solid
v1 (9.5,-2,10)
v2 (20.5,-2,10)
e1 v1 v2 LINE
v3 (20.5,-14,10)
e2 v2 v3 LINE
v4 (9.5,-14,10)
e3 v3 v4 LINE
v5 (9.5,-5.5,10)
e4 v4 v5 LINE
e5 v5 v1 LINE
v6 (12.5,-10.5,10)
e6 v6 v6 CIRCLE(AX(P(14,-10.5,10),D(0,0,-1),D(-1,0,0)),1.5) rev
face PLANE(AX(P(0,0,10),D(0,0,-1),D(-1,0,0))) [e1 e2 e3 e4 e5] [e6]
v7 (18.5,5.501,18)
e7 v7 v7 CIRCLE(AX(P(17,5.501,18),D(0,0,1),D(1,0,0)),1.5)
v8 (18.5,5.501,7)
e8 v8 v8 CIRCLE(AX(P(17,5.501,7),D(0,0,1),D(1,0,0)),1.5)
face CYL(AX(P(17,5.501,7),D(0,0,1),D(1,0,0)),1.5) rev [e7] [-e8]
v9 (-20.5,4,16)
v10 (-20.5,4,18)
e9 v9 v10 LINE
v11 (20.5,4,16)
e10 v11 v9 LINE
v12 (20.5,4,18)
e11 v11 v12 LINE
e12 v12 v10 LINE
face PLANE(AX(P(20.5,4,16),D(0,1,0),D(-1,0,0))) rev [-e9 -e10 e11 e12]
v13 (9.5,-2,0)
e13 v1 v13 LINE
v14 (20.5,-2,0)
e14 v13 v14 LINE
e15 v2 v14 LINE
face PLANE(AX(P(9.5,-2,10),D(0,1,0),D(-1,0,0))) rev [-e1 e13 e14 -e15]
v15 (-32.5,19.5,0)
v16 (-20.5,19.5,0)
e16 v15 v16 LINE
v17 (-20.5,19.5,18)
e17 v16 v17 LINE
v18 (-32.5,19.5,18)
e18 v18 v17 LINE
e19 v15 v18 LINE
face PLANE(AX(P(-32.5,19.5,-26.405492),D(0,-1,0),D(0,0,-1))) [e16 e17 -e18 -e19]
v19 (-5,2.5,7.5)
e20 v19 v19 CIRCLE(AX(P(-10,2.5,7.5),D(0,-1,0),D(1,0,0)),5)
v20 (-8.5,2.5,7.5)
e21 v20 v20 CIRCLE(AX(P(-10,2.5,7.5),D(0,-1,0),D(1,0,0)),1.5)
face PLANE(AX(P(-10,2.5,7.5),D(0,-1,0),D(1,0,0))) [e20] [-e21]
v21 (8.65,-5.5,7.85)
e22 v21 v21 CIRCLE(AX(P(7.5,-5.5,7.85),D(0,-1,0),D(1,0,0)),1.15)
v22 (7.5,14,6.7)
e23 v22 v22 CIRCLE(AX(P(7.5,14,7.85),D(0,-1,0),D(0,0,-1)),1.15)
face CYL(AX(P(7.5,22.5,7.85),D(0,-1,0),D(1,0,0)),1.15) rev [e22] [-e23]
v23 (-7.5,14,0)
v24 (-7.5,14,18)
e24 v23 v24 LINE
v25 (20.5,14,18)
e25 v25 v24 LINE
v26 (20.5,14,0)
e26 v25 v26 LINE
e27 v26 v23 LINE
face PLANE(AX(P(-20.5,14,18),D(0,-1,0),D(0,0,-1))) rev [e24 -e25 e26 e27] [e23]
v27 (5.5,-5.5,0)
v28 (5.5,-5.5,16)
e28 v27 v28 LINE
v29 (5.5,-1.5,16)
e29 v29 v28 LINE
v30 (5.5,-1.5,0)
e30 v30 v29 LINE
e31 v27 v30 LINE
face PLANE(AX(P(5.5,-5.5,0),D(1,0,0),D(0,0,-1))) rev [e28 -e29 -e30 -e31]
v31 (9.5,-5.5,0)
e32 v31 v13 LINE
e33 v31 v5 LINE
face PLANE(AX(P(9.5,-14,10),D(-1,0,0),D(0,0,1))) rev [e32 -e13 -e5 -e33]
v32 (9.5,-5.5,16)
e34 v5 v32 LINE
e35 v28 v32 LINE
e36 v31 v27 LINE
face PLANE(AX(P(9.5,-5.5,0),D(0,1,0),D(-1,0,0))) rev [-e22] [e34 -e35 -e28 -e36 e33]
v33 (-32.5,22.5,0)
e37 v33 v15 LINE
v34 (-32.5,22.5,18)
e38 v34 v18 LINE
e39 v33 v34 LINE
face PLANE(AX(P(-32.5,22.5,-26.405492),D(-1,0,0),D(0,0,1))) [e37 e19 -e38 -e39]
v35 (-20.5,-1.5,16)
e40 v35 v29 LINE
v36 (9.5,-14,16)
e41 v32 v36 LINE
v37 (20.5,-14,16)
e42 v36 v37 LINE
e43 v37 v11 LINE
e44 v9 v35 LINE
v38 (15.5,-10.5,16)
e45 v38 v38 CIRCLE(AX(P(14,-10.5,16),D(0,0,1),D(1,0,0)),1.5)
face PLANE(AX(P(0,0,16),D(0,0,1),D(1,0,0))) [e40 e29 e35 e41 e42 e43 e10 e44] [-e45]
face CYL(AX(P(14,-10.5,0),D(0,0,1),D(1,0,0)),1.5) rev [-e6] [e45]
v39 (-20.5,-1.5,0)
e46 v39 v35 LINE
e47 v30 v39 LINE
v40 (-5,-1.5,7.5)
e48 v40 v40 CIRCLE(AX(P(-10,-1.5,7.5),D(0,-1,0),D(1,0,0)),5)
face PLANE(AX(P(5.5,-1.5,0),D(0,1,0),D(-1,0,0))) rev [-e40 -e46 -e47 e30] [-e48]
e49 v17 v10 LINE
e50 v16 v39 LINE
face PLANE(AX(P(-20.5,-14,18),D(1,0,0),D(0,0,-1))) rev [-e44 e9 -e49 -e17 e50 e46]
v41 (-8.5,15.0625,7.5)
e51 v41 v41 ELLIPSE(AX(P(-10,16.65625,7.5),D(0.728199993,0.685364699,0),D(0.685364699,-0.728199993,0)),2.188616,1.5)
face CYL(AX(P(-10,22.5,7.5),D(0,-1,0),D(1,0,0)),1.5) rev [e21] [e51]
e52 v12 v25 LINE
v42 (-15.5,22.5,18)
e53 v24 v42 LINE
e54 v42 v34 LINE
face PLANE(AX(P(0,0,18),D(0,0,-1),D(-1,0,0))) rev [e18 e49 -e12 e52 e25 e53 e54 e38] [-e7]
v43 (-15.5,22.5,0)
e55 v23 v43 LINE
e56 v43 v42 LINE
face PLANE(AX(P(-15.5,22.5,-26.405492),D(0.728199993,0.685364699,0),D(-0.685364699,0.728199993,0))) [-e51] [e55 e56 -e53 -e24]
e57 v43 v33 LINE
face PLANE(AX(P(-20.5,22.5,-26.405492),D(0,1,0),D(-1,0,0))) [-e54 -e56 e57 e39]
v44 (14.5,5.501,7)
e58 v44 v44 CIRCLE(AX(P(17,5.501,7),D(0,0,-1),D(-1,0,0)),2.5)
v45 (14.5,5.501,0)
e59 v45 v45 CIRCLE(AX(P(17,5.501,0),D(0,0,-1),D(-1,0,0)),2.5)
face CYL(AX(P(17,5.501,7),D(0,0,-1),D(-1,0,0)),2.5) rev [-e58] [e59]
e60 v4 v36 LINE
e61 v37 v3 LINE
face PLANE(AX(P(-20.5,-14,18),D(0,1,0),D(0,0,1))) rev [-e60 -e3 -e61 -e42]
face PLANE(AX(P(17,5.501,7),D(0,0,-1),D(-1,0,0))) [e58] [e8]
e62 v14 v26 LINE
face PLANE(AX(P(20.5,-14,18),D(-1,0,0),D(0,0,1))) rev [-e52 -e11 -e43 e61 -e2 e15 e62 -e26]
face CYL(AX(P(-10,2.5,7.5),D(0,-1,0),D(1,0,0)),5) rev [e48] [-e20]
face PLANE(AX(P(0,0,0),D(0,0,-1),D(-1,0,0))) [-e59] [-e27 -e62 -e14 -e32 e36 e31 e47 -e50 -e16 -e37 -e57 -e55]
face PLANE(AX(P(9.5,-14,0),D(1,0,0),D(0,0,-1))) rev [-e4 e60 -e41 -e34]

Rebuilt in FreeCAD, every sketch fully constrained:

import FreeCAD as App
import Part
import Sketcher
from FreeCAD import Vector


def add_polygon(sketch, points):
    """Adds a closed chain of lines whose ends are joined by coincident constraints."""
    first, n = sketch.GeometryCount, len(points)
    for a, b in zip(points, points[1:] + points[:1]):
        sketch.addGeometry(Part.LineSegment(App.Vector(*a, 0), App.Vector(*b, 0)), False)
    for i in range(n):
        sketch.addConstraint(Sketcher.Constraint("Coincident", first + i, 2, first + (i + 1) % n, 1))

doc = App.newDocument("Part")
params = doc.addObject("Spreadsheet::Sheet", "Params")
for row, (alias, value) in enumerate([
    ("sketch1_width", "41 mm"),
    ("sketch1_height", "28 mm"),
    ("pad1_length", "18 mm"),
    ("sketch2_width", "4 mm"),
    ("sketch2_width2", "26 mm"),
    ("sketch2_height", "8.5 mm"),
    ("pocket1_length", "18 mm"),
    ("sketch3_width", "12 mm"),
    ("sketch3_width2", "13 mm"),
    ("sketch3_width3", "17 mm"),
    ("sketch3_height", "3 mm"),
    ("sketch3_height2", "5.5 mm"),
    ("pad2_length", "18 mm"),
    ("sketch4_width", "41 mm"),
    ("sketch4_height", "18 mm"),
    ("pocket2_length", "2 mm"),
    ("sketch5_diameter", "3 mm"),
    ("pocket3_length", "11 mm"),
    ("sketch6_diameter", "3 mm"),
    ("sketch7_diameter", "5 mm"),
    ("pocket5_length", "7 mm"),
    ("sketch8_width", "11 mm"),
    ("sketch8_height", "12 mm"),
    ("pocket6_length", "10 mm"),
    ("sketch9_diameter", "10 mm"),
    ("pocket7_length", "4 mm"),
    ("sketch10_diameter", "3 mm"),
    ("sketch11_diameter", "2.3 mm"),
], start=1):
    params.set(f"A{row}", alias)
    params.set(f"B{row}", "=" + value)
    params.setAlias(f"B{row}", alias)

body = doc.addObject("PartDesign::Body", "Body")

sketch1 = body.newObject("Sketcher::SketchObject", "Sketch")
sketch1.AttachmentSupport = (doc.getObject("XY_Plane"), [""])
sketch1.MapMode = "FlatFace"
add_polygon(sketch1, [(-20.5, 14), (-20.5, -14), (20.5, -14), (20.5, 14)])
sketch1.addConstraint([
    Sketcher.Constraint("Vertical", 0),
    Sketcher.Constraint("Horizontal", 1),
    Sketcher.Constraint("Vertical", 2),
    Sketcher.Constraint("Horizontal", 3),
    Sketcher.Constraint("Symmetric", 0, 2, 2, 2, -1, 1),
    Sketcher.Constraint("DistanceX", 1, 1, 1, 2, 41.0),
    Sketcher.Constraint("DistanceY", 0, 2, 0, 1, 28.0),
])
sketch1.setExpression("Constraints[9]", "Params.sketch1_width")
sketch1.setExpression("Constraints[10]", "Params.sketch1_height")
pad1 = body.newObject("PartDesign::Pad", "Pad")
pad1.Profile = sketch1
pad1.setExpression("Length", "Params.pad1_length")

sketch2 = body.newObject("Sketcher::SketchObject", "Sketch001")
sketch2.AttachmentSupport = (doc.getObject("XY_Plane"), [""])
sketch2.MapMode = "FlatFace"
sketch2.AttachmentOffset = App.Placement(Vector(0, 0, 18), App.Rotation())
add_polygon(sketch2, [(9.5, -14), (9.5, -5.5), (5.5, -5.5), (5.5, -1.5), (-20.5, -1.5), (-20.5, -14)])
sketch2.addConstraint([
    Sketcher.Constraint("Vertical", 0),
    Sketcher.Constraint("Horizontal", 1),
    Sketcher.Constraint("Vertical", 2),
    Sketcher.Constraint("Horizontal", 3),
    Sketcher.Constraint("Vertical", 4),
    Sketcher.Constraint("Horizontal", 5),
    Sketcher.Constraint("Equal", 1, 2),
    Sketcher.Constraint("DistanceX", 1, 2, 1, 1, 4.0),
    Sketcher.Constraint("DistanceX", 3, 2, 3, 1, 26.0),
    Sketcher.Constraint("DistanceY", 0, 1, 0, 2, 8.5),
    Sketcher.Constraint("DistanceY", 4, 2, -1, 1, 14.0),
    Sketcher.Constraint("DistanceX", -1, 1, 0, 2, 9.5),
])
sketch2.setExpression("Constraints[13]", "Params.sketch2_width")
sketch2.setExpression("Constraints[14]", "Params.sketch2_width2")
sketch2.setExpression("Constraints[15]", "Params.sketch2_height")
pocket1 = body.newObject("PartDesign::Pocket", "Pocket")
pocket1.Profile = sketch2
pocket1.setExpression("Length", "Params.pocket1_length")

sketch3 = body.newObject("Sketcher::SketchObject", "Sketch002")
sketch3.AttachmentSupport = (doc.getObject("XY_Plane"), [""])
sketch3.MapMode = "FlatFace"
sketch3.AttachmentOffset = App.Placement(Vector(0, 0, 18), App.Rotation())
add_polygon(sketch3, [(-32.5, 22.5), (-32.5, 19.5), (-20.5, 19.5), (-20.5, 14), (-7.5, 14), (-15.5, 22.5)])
sketch3.addConstraint([
    Sketcher.Constraint("Vertical", 0),
    Sketcher.Constraint("Horizontal", 1),
    Sketcher.Constraint("Vertical", 2),
    Sketcher.Constraint("Horizontal", 3),
    Sketcher.Constraint("Horizontal", 5),
    Sketcher.Constraint("DistanceX", 1, 1, 1, 2, 12.0),
    Sketcher.Constraint("DistanceX", 3, 1, 3, 2, 13.0),
    Sketcher.Constraint("DistanceX", 5, 2, 5, 1, 17.0),
    Sketcher.Constraint("DistanceY", 0, 2, 0, 1, 3.0),
    Sketcher.Constraint("DistanceY", 2, 2, 2, 1, 5.5),
    Sketcher.Constraint("DistanceY", -1, 1, 2, 2, 14.0),
    Sketcher.Constraint("DistanceX", 0, 2, -1, 1, 32.5),
])
sketch3.setExpression("Constraints[11]", "Params.sketch3_width")
sketch3.setExpression("Constraints[12]", "Params.sketch3_width2")
sketch3.setExpression("Constraints[13]", "Params.sketch3_width3")
sketch3.setExpression("Constraints[14]", "Params.sketch3_height")
sketch3.setExpression("Constraints[15]", "Params.sketch3_height2")
pad2 = body.newObject("PartDesign::Pad", "Pad001")
pad2.Profile = sketch3
pad2.setExpression("Length", "Params.pad2_length")
pad2.Reversed = True

sketch4 = body.newObject("Sketcher::SketchObject", "Sketch003")
sketch4.AttachmentSupport = (doc.getObject("XY_Plane"), [""])
sketch4.MapMode = "FlatFace"
sketch4.AttachmentOffset = App.Placement(Vector(0, 0, 18), App.Rotation())
add_polygon(sketch4, [(-20.5, 4), (-20.5, -14), (20.5, -14), (20.5, 4)])
sketch4.addConstraint([
    Sketcher.Constraint("Vertical", 0),
    Sketcher.Constraint("Horizontal", 1),
    Sketcher.Constraint("Vertical", 2),
    Sketcher.Constraint("Horizontal", 3),
    Sketcher.Constraint("DistanceX", 1, 1, 1, 2, 41.0),
    Sketcher.Constraint("DistanceY", 0, 2, 0, 1, 18.0),
    Sketcher.Constraint("DistanceY", 0, 2, -1, 1, 14.0),
    Sketcher.Constraint("DistanceX", 0, 2, -1, 1, 20.5),
])
sketch4.setExpression("Constraints[8]", "Params.sketch4_width")
sketch4.setExpression("Constraints[9]", "Params.sketch4_height")
pocket2 = body.newObject("PartDesign::Pocket", "Pocket001")
pocket2.Profile = sketch4
pocket2.setExpression("Length", "Params.pocket2_length")

sketch5 = body.newObject("Sketcher::SketchObject", "Sketch004")
sketch5.AttachmentSupport = (doc.getObject("XY_Plane"), [""])
sketch5.MapMode = "FlatFace"
sketch5.AttachmentOffset = App.Placement(Vector(0, 0, 18), App.Rotation())
sketch5.addGeometry(Part.Circle(Vector(17, 5.501, 0), Vector(0, 0, 1), 1.5), False)
sketch5.addConstraint([
    Sketcher.Constraint("Diameter", 0, 3.0),
    Sketcher.Constraint("DistanceX", -1, 1, 0, 3, 17.0),
    Sketcher.Constraint("DistanceY", -1, 1, 0, 3, 5.501),
])
sketch5.setExpression("Constraints[0]", "Params.sketch5_diameter")
pocket3 = body.newObject("PartDesign::Pocket", "Pocket002")
pocket3.Profile = sketch5
pocket3.setExpression("Length", "Params.pocket3_length")

sketch6 = body.newObject("Sketcher::SketchObject", "Sketch005")
sketch6.AttachmentSupport = (doc.getObject("XY_Plane"), [""])
sketch6.MapMode = "FlatFace"
sketch6.AttachmentOffset = App.Placement(Vector(0, 0, 16), App.Rotation())
sketch6.addGeometry(Part.Circle(Vector(14, -10.5, 0), Vector(0, 0, 1), 1.5), False)
sketch6.addConstraint([
    Sketcher.Constraint("Diameter", 0, 3.0),
    Sketcher.Constraint("DistanceX", -1, 1, 0, 3, 14.0),
    Sketcher.Constraint("DistanceY", 0, 3, -1, 1, 10.5),
])
sketch6.setExpression("Constraints[0]", "Params.sketch6_diameter")
pocket4 = body.newObject("PartDesign::Pocket", "Pocket003")
pocket4.Profile = sketch6
pocket4.Type = "ThroughAll"

sketch7 = body.newObject("Sketcher::SketchObject", "Sketch006")
sketch7.AttachmentSupport = (doc.getObject("XY_Plane"), [""])
sketch7.MapMode = "FlatFace"
sketch7.addGeometry(Part.Circle(Vector(17, 5.501, 0), Vector(0, 0, 1), 2.5), False)
sketch7.addConstraint([
    Sketcher.Constraint("Diameter", 0, 5.0),
    Sketcher.Constraint("DistanceX", -1, 1, 0, 3, 17.0),
    Sketcher.Constraint("DistanceY", -1, 1, 0, 3, 5.501),
])
sketch7.setExpression("Constraints[0]", "Params.sketch7_diameter")
pocket5 = body.newObject("PartDesign::Pocket", "Pocket004")
pocket5.Profile = sketch7
pocket5.setExpression("Length", "Params.pocket5_length")
pocket5.Reversed = True

sketch8 = body.newObject("Sketcher::SketchObject", "Sketch007")
sketch8.AttachmentSupport = (doc.getObject("XY_Plane"), [""])
sketch8.MapMode = "FlatFace"
add_polygon(sketch8, [(20.5, -2), (20.5, -14), (9.5, -14), (9.5, -2)])
sketch8.addConstraint([
    Sketcher.Constraint("Vertical", 0),
    Sketcher.Constraint("Horizontal", 1),
    Sketcher.Constraint("Vertical", 2),
    Sketcher.Constraint("Horizontal", 3),
    Sketcher.Constraint("DistanceX", 1, 2, 1, 1, 11.0),
    Sketcher.Constraint("DistanceY", 0, 2, 0, 1, 12.0),
    Sketcher.Constraint("DistanceY", 0, 2, -1, 1, 14.0),
    Sketcher.Constraint("DistanceX", -1, 1, 0, 2, 20.5),
])
sketch8.setExpression("Constraints[8]", "Params.sketch8_width")
sketch8.setExpression("Constraints[9]", "Params.sketch8_height")
pocket6 = body.newObject("PartDesign::Pocket", "Pocket005")
pocket6.Profile = sketch8
pocket6.setExpression("Length", "Params.pocket6_length")
pocket6.Reversed = True

sketch9 = body.newObject("Sketcher::SketchObject", "Sketch008")
sketch9.AttachmentSupport = (doc.getObject("XZ_Plane"), [""])
sketch9.MapMode = "FlatFace"
sketch9.AttachmentOffset = App.Placement(Vector(0, 0, 1.5), App.Rotation())
sketch9.addGeometry(Part.Circle(Vector(-10, 7.5, 0), Vector(0, 0, 1), 5), False)
sketch9.addConstraint([
    Sketcher.Constraint("Diameter", 0, 10.0),
    Sketcher.Constraint("DistanceX", 0, 3, -1, 1, 10.0),
    Sketcher.Constraint("DistanceY", -1, 1, 0, 3, 7.5),
])
sketch9.setExpression("Constraints[0]", "Params.sketch9_diameter")
pocket7 = body.newObject("PartDesign::Pocket", "Pocket006")
pocket7.Profile = sketch9
pocket7.setExpression("Length", "Params.pocket7_length")

sketch10 = body.newObject("Sketcher::SketchObject", "Sketch009")
sketch10.AttachmentSupport = (doc.getObject("XZ_Plane"), [""])
sketch10.MapMode = "FlatFace"
sketch10.AttachmentOffset = App.Placement(Vector(0, 0, -2.5), App.Rotation())
sketch10.addGeometry(Part.Circle(Vector(-10, 7.5, 0), Vector(0, 0, 1), 1.5), False)
sketch10.addConstraint([
    Sketcher.Constraint("Diameter", 0, 3.0),
    Sketcher.Constraint("DistanceX", 0, 3, -1, 1, 10.0),
    Sketcher.Constraint("DistanceY", -1, 1, 0, 3, 7.5),
])
sketch10.setExpression("Constraints[0]", "Params.sketch10_diameter")
pocket8 = body.newObject("PartDesign::Pocket", "Pocket007")
pocket8.Profile = sketch10
pocket8.Type = "ThroughAll"

sketch11 = body.newObject("Sketcher::SketchObject", "Sketch010")
sketch11.AttachmentSupport = (doc.getObject("XZ_Plane"), [""])
sketch11.MapMode = "FlatFace"
sketch11.AttachmentOffset = App.Placement(Vector(0, 0, 5.5), App.Rotation())
sketch11.addGeometry(Part.Circle(Vector(7.5, 7.85, 0), Vector(0, 0, 1), 1.15), False)
sketch11.addConstraint([
    Sketcher.Constraint("Diameter", 0, 2.3),
    Sketcher.Constraint("DistanceX", -1, 1, 0, 3, 7.5),
    Sketcher.Constraint("DistanceY", -1, 1, 0, 3, 7.85),
])
sketch11.setExpression("Constraints[0]", "Params.sketch11_diameter")
pocket9 = body.newObject("PartDesign::Pocket", "Pocket008")
pocket9.Profile = sketch11
pocket9.Type = "ThroughAll"

doc.recompute()
